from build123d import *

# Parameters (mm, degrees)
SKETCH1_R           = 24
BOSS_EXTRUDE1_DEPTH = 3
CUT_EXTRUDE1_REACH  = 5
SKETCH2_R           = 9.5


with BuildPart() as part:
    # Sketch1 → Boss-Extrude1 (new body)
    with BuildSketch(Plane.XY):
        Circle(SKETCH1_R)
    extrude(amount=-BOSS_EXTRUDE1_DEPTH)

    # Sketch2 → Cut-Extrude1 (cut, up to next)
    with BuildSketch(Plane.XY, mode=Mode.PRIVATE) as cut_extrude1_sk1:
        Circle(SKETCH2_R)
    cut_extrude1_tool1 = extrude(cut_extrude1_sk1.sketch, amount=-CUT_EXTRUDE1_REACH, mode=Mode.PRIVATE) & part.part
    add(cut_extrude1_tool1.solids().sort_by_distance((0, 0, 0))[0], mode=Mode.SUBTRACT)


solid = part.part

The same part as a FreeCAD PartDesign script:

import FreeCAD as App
import Part
import Sketcher
Q = App.Units.Quantity

doc = App.newDocument("Part")
params = doc.addObject("Spreadsheet::Sheet", "Params")
for row, (alias, value) in enumerate([
    ("sketch1_diameter", "48 mm"),
    ("pad1_length", "3 mm"),
    ("sketch2_diameter", "19 mm"),
], start=1):
    params.set(f"A{row}", alias)
    params.set(f"B{row}", "=" + value)
    params.setAlias(f"B{row}", alias)

body = doc.addObject("PartDesign::Body", "Body")

# Sketch on XY plane
sketch1 = body.newObject("Sketcher::SketchObject", "Sketch")
sketch1.AttachmentSupport = (doc.getObject("XY_Plane"), [""])
sketch1.MapMode = "FlatFace"
sketch1.addGeometry(Part.Circle(App.Vector(0, 0, 0), App.Vector(0, 0, 1), 24), False)
sketch1.addConstraint(Sketcher.Constraint("Coincident", 0, 3, -1, 1))
sketch1.addConstraint(Sketcher.Constraint("Diameter", 0, Q("48 mm")))
sketch1.setExpression("Constraints[1]", "Params.sketch1_diameter")
pad1 = body.newObject("PartDesign::Pad", "Pad")
pad1.Profile = sketch1
pad1.setExpression("Length", "Params.pad1_length")
pad1.Reversed = True

# Sketch on XY plane
sketch2 = body.newObject("Sketcher::SketchObject", "Sketch001")
sketch2.AttachmentSupport = (doc.getObject("XY_Plane"), [""])
sketch2.MapMode = "FlatFace"
sketch2.addGeometry(Part.Circle(App.Vector(0, 0, 0), App.Vector(0, 0, 1), 10), False)
sketch2.addConstraint(Sketcher.Constraint("Coincident", 0, 3, -1, 1))
sketch2.addConstraint(Sketcher.Constraint("Diameter", 0, Q("19 mm")))
sketch2.setExpression("Constraints[1]", "Params.sketch2_diameter")
pocket1 = body.newObject("PartDesign::Pocket", "Pocket")
pocket1.Profile = sketch2
pocket1.Type = "UpToFirst"

doc.recompute()
